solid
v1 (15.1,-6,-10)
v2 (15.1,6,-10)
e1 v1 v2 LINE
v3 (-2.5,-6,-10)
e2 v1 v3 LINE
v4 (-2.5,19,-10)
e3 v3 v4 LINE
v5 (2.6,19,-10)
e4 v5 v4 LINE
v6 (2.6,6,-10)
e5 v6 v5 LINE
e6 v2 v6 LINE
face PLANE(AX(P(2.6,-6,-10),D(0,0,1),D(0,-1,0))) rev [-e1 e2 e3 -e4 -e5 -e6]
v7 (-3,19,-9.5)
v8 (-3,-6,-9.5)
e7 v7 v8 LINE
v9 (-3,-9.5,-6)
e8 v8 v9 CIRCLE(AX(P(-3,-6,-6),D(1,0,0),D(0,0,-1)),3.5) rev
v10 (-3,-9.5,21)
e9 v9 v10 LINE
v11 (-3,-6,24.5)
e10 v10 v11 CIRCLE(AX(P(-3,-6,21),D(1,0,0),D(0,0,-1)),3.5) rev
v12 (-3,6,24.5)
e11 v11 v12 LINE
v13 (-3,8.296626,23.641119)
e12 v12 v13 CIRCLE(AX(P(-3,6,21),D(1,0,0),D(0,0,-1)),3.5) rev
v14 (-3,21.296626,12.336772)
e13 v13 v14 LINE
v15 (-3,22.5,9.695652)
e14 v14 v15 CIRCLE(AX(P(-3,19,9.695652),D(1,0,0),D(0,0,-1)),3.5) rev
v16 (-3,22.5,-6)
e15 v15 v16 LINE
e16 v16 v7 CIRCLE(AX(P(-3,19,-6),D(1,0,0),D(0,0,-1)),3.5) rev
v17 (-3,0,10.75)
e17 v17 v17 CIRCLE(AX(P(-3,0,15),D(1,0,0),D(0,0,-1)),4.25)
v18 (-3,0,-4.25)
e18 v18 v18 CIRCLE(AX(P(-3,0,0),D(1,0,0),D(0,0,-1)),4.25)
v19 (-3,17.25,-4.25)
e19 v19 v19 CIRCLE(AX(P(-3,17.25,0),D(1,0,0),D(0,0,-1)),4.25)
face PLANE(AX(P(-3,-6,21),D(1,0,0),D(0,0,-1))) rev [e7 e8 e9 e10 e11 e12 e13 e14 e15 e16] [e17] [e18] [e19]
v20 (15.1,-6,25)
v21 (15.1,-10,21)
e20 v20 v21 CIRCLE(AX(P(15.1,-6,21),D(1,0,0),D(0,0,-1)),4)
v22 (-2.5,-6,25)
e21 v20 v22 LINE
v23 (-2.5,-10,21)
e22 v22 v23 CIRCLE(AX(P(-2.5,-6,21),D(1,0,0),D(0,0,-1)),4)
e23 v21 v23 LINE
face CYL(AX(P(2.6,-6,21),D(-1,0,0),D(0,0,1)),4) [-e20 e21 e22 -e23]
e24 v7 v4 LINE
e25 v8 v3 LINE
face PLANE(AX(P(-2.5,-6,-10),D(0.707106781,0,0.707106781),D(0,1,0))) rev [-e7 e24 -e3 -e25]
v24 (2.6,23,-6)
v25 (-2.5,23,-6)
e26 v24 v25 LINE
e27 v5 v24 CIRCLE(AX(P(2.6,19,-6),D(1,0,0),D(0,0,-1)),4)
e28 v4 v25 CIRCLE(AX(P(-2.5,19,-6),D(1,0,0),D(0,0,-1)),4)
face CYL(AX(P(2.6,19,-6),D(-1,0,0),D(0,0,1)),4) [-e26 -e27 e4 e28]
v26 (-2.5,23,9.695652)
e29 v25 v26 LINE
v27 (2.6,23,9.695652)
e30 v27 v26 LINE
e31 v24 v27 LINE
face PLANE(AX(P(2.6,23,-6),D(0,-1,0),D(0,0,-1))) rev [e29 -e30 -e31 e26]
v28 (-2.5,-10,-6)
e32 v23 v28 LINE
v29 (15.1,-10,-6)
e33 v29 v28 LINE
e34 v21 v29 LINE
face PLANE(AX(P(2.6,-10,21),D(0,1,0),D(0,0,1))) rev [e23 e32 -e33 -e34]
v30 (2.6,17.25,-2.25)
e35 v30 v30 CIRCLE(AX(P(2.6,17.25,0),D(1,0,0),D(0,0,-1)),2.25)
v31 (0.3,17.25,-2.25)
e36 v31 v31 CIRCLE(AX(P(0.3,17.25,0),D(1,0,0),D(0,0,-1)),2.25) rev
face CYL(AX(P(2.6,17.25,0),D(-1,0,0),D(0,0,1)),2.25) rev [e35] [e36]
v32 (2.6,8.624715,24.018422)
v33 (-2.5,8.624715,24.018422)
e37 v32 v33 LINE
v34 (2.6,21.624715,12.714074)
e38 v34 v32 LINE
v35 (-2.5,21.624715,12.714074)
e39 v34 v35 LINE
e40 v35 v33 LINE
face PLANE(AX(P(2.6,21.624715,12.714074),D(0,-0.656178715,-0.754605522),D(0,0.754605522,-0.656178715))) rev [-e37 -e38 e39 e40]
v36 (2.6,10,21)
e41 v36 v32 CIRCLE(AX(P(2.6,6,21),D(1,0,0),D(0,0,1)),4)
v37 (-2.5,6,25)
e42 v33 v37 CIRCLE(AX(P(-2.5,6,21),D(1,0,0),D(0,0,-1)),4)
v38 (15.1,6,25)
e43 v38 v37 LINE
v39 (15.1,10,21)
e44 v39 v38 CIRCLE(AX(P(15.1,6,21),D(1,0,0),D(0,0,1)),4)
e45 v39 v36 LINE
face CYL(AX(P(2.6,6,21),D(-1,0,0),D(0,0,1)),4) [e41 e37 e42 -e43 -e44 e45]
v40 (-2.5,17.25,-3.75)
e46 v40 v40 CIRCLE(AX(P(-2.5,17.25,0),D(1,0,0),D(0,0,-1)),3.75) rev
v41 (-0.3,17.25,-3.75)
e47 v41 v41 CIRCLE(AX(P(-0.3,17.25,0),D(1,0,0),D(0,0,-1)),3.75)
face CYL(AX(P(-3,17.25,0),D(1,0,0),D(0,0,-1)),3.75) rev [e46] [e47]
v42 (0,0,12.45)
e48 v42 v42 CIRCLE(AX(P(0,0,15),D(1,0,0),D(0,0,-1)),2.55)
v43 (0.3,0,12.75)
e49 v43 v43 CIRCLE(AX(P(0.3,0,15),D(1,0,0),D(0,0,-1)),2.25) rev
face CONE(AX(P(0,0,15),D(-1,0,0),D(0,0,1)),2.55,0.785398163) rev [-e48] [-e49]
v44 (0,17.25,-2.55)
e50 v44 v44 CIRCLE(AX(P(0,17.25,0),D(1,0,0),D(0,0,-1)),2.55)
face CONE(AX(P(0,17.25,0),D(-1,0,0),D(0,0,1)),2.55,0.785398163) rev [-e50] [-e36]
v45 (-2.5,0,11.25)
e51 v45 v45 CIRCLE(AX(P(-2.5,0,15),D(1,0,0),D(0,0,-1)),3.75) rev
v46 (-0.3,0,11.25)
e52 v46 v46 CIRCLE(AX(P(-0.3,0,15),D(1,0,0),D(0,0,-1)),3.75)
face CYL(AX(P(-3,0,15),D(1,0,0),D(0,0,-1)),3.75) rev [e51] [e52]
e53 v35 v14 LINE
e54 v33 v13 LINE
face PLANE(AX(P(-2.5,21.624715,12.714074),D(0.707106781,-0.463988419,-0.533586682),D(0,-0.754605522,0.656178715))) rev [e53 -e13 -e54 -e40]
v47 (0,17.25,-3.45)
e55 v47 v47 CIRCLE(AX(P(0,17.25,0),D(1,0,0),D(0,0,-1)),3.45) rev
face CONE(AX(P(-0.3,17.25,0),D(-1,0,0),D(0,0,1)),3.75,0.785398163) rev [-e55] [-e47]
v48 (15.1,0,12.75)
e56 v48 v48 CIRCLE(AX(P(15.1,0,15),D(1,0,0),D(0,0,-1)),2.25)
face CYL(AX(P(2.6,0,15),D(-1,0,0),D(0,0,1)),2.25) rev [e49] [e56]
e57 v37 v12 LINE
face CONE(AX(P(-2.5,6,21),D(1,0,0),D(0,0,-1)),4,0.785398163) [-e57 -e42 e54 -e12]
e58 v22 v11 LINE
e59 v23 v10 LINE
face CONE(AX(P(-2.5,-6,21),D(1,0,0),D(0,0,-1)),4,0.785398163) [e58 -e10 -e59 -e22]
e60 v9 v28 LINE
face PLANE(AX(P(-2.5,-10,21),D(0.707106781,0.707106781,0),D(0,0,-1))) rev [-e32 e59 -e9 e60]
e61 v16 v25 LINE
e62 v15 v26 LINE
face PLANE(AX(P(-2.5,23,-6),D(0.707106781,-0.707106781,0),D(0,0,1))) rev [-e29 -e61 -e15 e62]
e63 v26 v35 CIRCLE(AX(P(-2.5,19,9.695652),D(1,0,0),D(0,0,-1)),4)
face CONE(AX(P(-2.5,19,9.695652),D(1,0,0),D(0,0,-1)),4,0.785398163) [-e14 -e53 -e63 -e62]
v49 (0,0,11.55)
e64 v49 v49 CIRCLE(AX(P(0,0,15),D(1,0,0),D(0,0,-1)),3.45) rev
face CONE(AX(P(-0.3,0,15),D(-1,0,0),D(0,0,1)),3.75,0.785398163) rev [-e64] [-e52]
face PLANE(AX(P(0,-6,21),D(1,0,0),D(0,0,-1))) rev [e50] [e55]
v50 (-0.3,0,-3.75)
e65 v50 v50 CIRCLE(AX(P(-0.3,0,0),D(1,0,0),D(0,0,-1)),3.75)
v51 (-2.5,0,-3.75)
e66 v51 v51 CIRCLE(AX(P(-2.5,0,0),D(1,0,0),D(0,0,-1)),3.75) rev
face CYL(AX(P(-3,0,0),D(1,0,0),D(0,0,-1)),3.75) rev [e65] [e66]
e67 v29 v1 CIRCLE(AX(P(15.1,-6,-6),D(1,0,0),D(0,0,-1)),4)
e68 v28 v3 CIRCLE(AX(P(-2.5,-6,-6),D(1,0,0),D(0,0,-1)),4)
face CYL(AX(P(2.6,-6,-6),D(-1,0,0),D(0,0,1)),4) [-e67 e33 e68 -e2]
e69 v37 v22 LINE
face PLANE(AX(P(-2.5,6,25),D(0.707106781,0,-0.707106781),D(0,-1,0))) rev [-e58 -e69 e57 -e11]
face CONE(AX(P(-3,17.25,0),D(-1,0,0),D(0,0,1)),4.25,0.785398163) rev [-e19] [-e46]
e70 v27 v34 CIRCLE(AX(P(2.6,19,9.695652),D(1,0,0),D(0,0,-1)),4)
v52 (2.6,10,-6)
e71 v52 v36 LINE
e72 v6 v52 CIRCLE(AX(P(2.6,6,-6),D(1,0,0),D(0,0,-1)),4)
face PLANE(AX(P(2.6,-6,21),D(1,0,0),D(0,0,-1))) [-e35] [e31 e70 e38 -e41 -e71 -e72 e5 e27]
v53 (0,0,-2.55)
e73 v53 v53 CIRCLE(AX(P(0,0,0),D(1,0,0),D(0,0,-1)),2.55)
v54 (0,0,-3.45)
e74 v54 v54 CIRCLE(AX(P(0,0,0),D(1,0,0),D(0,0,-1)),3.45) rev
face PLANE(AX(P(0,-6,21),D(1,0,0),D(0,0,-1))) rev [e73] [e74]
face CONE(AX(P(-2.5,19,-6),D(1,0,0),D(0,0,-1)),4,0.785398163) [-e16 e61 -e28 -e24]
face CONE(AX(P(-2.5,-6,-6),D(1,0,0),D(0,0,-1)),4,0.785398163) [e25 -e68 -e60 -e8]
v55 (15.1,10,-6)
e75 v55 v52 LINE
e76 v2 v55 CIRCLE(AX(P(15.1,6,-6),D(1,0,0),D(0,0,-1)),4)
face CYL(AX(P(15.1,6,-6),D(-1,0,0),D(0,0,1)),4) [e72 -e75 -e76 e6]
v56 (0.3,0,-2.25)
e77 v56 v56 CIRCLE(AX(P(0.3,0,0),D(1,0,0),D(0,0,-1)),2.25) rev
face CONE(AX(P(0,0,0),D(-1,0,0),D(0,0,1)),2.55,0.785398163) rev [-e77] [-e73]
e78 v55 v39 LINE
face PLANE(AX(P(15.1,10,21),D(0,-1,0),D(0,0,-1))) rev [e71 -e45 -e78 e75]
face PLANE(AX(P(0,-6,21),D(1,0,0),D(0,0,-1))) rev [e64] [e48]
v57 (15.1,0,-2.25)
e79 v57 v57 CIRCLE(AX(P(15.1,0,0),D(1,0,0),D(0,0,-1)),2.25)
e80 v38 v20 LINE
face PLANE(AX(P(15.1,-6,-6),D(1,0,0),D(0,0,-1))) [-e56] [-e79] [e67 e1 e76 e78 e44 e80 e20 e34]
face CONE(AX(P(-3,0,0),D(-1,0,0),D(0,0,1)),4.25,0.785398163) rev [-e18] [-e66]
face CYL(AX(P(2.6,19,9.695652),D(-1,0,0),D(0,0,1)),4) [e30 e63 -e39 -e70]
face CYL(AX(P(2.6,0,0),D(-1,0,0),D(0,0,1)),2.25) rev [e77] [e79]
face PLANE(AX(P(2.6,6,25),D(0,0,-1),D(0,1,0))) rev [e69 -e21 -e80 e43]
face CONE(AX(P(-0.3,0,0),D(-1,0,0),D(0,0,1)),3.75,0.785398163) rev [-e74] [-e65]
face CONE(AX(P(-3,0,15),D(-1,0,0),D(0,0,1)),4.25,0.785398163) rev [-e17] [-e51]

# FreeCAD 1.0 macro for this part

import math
import FreeCAD as App
import Part
import Sketcher
from FreeCAD import Vector


def edges_at(feature, points):
    """Names of the edges that pass closest to the given points."""
    edges = feature.Shape.Edges
    near = lambda p: min(range(len(edges)), key=lambda i: edges[i].distToShape(Part.Vertex(*p))[0])
    return sorted({f"Edge{near(p) + 1}" for p in points})

doc = App.newDocument("Part")
body = doc.addObject("PartDesign::Body", "Body")

sketch1 = body.newObject("Sketcher::SketchObject", "Sketch")
sketch1.AttachmentSupport = (doc.getObject("YZ_Plane"), [""])
sketch1.MapMode = "FlatFace"
sketch1.addGeometry([
    Part.LineSegment(Vector(-10, 21, 0), Vector(-10, -6, 0)),
    Part.ArcOfCircle(Part.Circle(Vector(-6, -6, 0), Vector(0, 0, 1), 4), math.radians(180), math.radians(270)),
    Part.LineSegment(Vector(-6, -10, 0), Vector(19, -10, 0)),
    Part.ArcOfCircle(Part.Circle(Vector(19, -6, 0), Vector(0, 0, 1), 4), math.radians(-90), math.radians(0)),
    Part.LineSegment(Vector(23, -6, 0), Vector(23, 9.7, 0)),
    Part.ArcOfCircle(Part.Circle(Vector(19, 9.7, 0), Vector(0, 0, 1), 4), math.radians(0), math.radians(49)),
    Part.LineSegment(Vector(21.6, 12.7, 0), Vector(8.6, 24, 0)),
    Part.ArcOfCircle(Part.Circle(Vector(6, 21, 0), Vector(0, 0, 1), 4), math.radians(49), math.radians(90)),
    Part.LineSegment(Vector(6, 25, 0), Vector(-6, 25, 0)),
    Part.ArcOfCircle(Part.Circle(Vector(-6, 21, 0), Vector(0, 0, 1), 4), math.radians(90), math.radians(180)),
    Part.Circle(Vector(0, 15, 0), Vector(0, 0, 1), 2.2),
    Part.Circle(Vector(0, 0, 0), Vector(0, 0, 1), 2.2),
    Part.Circle(Vector(17.2, 0, 0), Vector(0, 0, 1), 2.2),
], False)
sketch1.addConstraint([
    Sketcher.Constraint("Tangent", 0, 2, 1, 1),
    Sketcher.Constraint("Tangent", 1, 2, 2, 1),
    Sketcher.Constraint("Tangent", 2, 2, 3, 1),
    Sketcher.Constraint("Tangent", 3, 2, 4, 1),
    Sketcher.Constraint("Tangent", 4, 2, 5, 1),
    Sketcher.Constraint("Tangent", 5, 2, 6, 1),
    Sketcher.Constraint("Tangent", 6, 2, 7, 1),
    Sketcher.Constraint("Tangent", 7, 2, 8, 1),
    Sketcher.Constraint("Tangent", 8, 2, 9, 1),
    Sketcher.Constraint("Tangent", 9, 2, 0, 1),
    Sketcher.Constraint("Vertical", 0),
    Sketcher.Constraint("Horizontal", 2),
    Sketcher.Constraint("Vertical", 4),
    Sketcher.Constraint("Horizontal", 8),
    Sketcher.Constraint("Coincident", 11, 3, -1, 1),
    Sketcher.Constraint("Equal", 1, 3),
    Sketcher.Constraint("Equal", 3, 5),
    Sketcher.Constraint("Equal", 5, 7),
    Sketcher.Constraint("Equal", 7, 9),
    Sketcher.Constraint("Equal", 10, 11),
    Sketcher.Constraint("Equal", 11, 12),
    Sketcher.Constraint("PointOnObject", 10, 3, -2),
    Sketcher.Constraint("PointOnObject", 12, 3, -1),
    Sketcher.Constraint("Radius", 1, 4.0),
    Sketcher.Constraint("Diameter", 10, 4.5),
    Sketcher.Constraint("DistanceX", 2, 1, 2, 2, 25.0),
    Sketcher.Constraint("DistanceX", 8, 2, 8, 1, 12.0),
    Sketcher.Constraint("DistanceY", 0, 2, 0, 1, 27.0),
    Sketcher.Constraint("DistanceX", 1, 3, -1, 1, 6.0),
    Sketcher.Constraint("DistanceY", 1, 3, -1, 1, 6.0),
    Sketcher.Constraint("DistanceY", -1, 1, 10, 3, 15.0),
    Sketcher.Constraint("DistanceX", -1, 1, 12, 3, 17.25),
    Sketcher.Constraint("DistanceY", 4, 1, 4, 2, 15.695652),
])
pad1 = body.newObject("PartDesign::Pad", "Pad")
pad1.Profile = sketch1
pad1.Length = 2.6

sketch2 = body.newObject("Sketcher::SketchObject", "Sketch001")
sketch2.AttachmentSupport = (doc.getObject("YZ_Plane"), [""])
sketch2.MapMode = "FlatFace"
sketch2.AttachmentOffset = App.Placement(Vector(0, 0, -3), App.Rotation())
sketch2.addGeometry([
    Part.LineSegment(Vector(-10, 21, 0), Vector(-10, -6, 0)),
    Part.ArcOfCircle(Part.Circle(Vector(-6, -6, 0), Vector(0, 0, 1), 4), math.radians(180), math.radians(270)),
    Part.LineSegment(Vector(-6, -10, 0), Vector(19, -10, 0)),
    Part.ArcOfCircle(Part.Circle(Vector(19, -6, 0), Vector(0, 0, 1), 4), math.radians(-90), math.radians(0)),
    Part.LineSegment(Vector(23, -6, 0), Vector(23, 9.7, 0)),
    Part.ArcOfCircle(Part.Circle(Vector(19, 9.7, 0), Vector(0, 0, 1), 4), math.radians(0), math.radians(49)),
    Part.LineSegment(Vector(21.6, 12.7, 0), Vector(8.6, 24, 0)),
    Part.ArcOfCircle(Part.Circle(Vector(6, 21, 0), Vector(0, 0, 1), 4), math.radians(49), math.radians(90)),
    Part.LineSegment(Vector(6, 25, 0), Vector(-6, 25, 0)),
    Part.ArcOfCircle(Part.Circle(Vector(-6, 21, 0), Vector(0, 0, 1), 4), math.radians(90), math.radians(180)),
    Part.Circle(Vector(0, 15, 0), Vector(0, 0, 1), 3.8),
    Part.Circle(Vector(0, 0, 0), Vector(0, 0, 1), 3.8),
    Part.Circle(Vector(17.2, 0, 0), Vector(0, 0, 1), 3.8),
], False)
sketch2.addConstraint([
    Sketcher.Constraint("Tangent", 0, 2, 1, 1),
    Sketcher.Constraint("Tangent", 1, 2, 2, 1),
    Sketcher.Constraint("Tangent", 2, 2, 3, 1),
    Sketcher.Constraint("Tangent", 3, 2, 4, 1),
    Sketcher.Constraint("Tangent", 4, 2, 5, 1),
    Sketcher.Constraint("Tangent", 5, 2, 6, 1),
    Sketcher.Constraint("Tangent", 6, 2, 7, 1),
    Sketcher.Constraint("Tangent", 7, 2, 8, 1),
    Sketcher.Constraint("Tangent", 8, 2, 9, 1),
    Sketcher.Constraint("Tangent", 9, 2, 0, 1),
    Sketcher.Constraint("Vertical", 0),
    Sketcher.Constraint("Horizontal", 2),
    Sketcher.Constraint("Vertical", 4),
    Sketcher.Constraint("Horizontal", 8),
    Sketcher.Constraint("Coincident", 11, 3, -1, 1),
    Sketcher.Constraint("Equal", 1, 3),
    Sketcher.Constraint("Equal", 3, 5),
    Sketcher.Constraint("Equal", 5, 7),
    Sketcher.Constraint("Equal", 7, 9),
    Sketcher.Constraint("Equal", 10, 11),
    Sketcher.Constraint("Equal", 11, 12),
    Sketcher.Constraint("PointOnObject", 10, 3, -2),
    Sketcher.Constraint("PointOnObject", 12, 3, -1),
    Sketcher.Constraint("Radius", 1, 4.0),
    Sketcher.Constraint("Diameter", 10, 7.5),
    Sketcher.Constraint("DistanceX", 2, 1, 2, 2, 25.0),
    Sketcher.Constraint("DistanceX", 8, 2, 8, 1, 12.0),
    Sketcher.Constraint("DistanceY", 0, 2, 0, 1, 27.0),
    Sketcher.Constraint("DistanceX", 1, 3, -1, 1, 6.0),
    Sketcher.Constraint("DistanceY", 1, 3, -1, 1, 6.0),
    Sketcher.Constraint("DistanceY", -1, 1, 10, 3, 15.0),
    Sketcher.Constraint("DistanceX", -1, 1, 12, 3, 17.25),
    Sketcher.Constraint("DistanceY", 4, 1, 4, 2, 15.695652),
])
pad2 = body.newObject("PartDesign::Pad", "Pad001")
pad2.Profile = sketch2
pad2.Length = 3
doc.recompute()

chamfer = body.newObject("PartDesign::Chamfer", "Chamfer")
chamfer.Base = (pad2, edges_at(pad2, [
    (0, 0, 17.25),
    (0, 17.25, 2.25),
    (0, 0, 2.25),
    (0, 0, 18.75),
    (0, 0, 3.75),
    (0, 17.25, 3.75),
]))
chamfer.Size = 0.3
doc.recompute()

chamfer2 = body.newObject("PartDesign::Chamfer", "Chamfer001")
chamfer2.Base = (chamfer, edges_at(chamfer, [
    (-3, -8.828, 23.828),
    (-3, 0, 25),
    (-3, 7.401, 24.747),
    (-3, 15.125, 18.366),
    (-3, 22.64, 11.354),
    (-3, 23, 1.848),
    (-3, 21.828, -8.828),
    (-3, 6.5, -10),
    (-3, -8.828, -8.828),
    (-3, -10, 7.5),
    (-3, 17.25, 3.75),
    (-3, 0, 3.75),
    (-3, 0, 18.75),
]))
chamfer2.Size = 0.5

sketch3 = body.newObject("Sketcher::SketchObject", "Sketch002")
sketch3.AttachmentSupport = (doc.getObject("YZ_Plane"), [""])
sketch3.MapMode = "FlatFace"
sketch3.AttachmentOffset = App.Placement(Vector(0, 0, 2.6), App.Rotation())
sketch3.addGeometry([
    Part.LineSegment(Vector(-10, 21, 0), Vector(-10, -6, 0)),
    Part.ArcOfCircle(Part.Circle(Vector(-6, -6, 0), Vector(0, 0, 1), 4), math.radians(180), math.radians(270)),
    Part.LineSegment(Vector(-6, -10, 0), Vector(6, -10, 0)),
    Part.ArcOfCircle(Part.Circle(Vector(6, -6, 0), Vector(0, 0, 1), 4), math.radians(-90), math.radians(0)),
    Part.LineSegment(Vector(10, -6, 0), Vector(10, 21, 0)),
    Part.ArcOfCircle(Part.Circle(Vector(6, 21, 0), Vector(0, 0, 1), 4), math.radians(0), math.radians(90)),
    Part.LineSegment(Vector(6, 25, 0), Vector(-6, 25, 0)),
    Part.ArcOfCircle(Part.Circle(Vector(-6, 21, 0), Vector(0, 0, 1), 4), math.radians(90), math.radians(180)),
    Part.Circle(Vector(0, 15, 0), Vector(0, 0, 1), 2.2),
    Part.Circle(Vector(0, 0, 0), Vector(0, 0, 1), 2.2),
], False)
sketch3.addConstraint([
    Sketcher.Constraint("Tangent", 0, 2, 1, 1),
    Sketcher.Constraint("Tangent", 1, 2, 2, 1),
    Sketcher.Constraint("Tangent", 2, 2, 3, 1),
    Sketcher.Constraint("Tangent", 3, 2, 4, 1),
    Sketcher.Constraint("Tangent", 4, 2, 5, 1),
    Sketcher.Constraint("Tangent", 5, 2, 6, 1),
    Sketcher.Constraint("Tangent", 6, 2, 7, 1),
    Sketcher.Constraint("Tangent", 7, 2, 0, 1),
    Sketcher.Constraint("Vertical", 0),
    Sketcher.Constraint("Horizontal", 2),
    Sketcher.Constraint("Vertical", 4),
    Sketcher.Constraint("Horizontal", 6),
    Sketcher.Constraint("Coincident", 9, 3, -1, 1),
    Sketcher.Constraint("Equal", 1, 3),
    Sketcher.Constraint("Equal", 3, 5),
    Sketcher.Constraint("Equal", 5, 7),
    Sketcher.Constraint("Equal", 8, 9),
    Sketcher.Constraint("PointOnObject", 8, 3, -2),
    Sketcher.Constraint("Radius", 1, 4.0),
    Sketcher.Constraint("Diameter", 8, 4.5),
    Sketcher.Constraint("DistanceX", 2, 1, 2, 2, 12.0),
    Sketcher.Constraint("DistanceY", 0, 2, 0, 1, 27.0),
    Sketcher.Constraint("DistanceX", 1, 3, -1, 1, 6.0),
    Sketcher.Constraint("DistanceY", 1, 3, -1, 1, 6.0),
    Sketcher.Constraint("DistanceY", -1, 1, 8, 3, 15.0),
])
pad3 = body.newObject("PartDesign::Pad", "Pad002")
pad3.Profile = sketch3
pad3.Length = 12.5

doc.recompute()
